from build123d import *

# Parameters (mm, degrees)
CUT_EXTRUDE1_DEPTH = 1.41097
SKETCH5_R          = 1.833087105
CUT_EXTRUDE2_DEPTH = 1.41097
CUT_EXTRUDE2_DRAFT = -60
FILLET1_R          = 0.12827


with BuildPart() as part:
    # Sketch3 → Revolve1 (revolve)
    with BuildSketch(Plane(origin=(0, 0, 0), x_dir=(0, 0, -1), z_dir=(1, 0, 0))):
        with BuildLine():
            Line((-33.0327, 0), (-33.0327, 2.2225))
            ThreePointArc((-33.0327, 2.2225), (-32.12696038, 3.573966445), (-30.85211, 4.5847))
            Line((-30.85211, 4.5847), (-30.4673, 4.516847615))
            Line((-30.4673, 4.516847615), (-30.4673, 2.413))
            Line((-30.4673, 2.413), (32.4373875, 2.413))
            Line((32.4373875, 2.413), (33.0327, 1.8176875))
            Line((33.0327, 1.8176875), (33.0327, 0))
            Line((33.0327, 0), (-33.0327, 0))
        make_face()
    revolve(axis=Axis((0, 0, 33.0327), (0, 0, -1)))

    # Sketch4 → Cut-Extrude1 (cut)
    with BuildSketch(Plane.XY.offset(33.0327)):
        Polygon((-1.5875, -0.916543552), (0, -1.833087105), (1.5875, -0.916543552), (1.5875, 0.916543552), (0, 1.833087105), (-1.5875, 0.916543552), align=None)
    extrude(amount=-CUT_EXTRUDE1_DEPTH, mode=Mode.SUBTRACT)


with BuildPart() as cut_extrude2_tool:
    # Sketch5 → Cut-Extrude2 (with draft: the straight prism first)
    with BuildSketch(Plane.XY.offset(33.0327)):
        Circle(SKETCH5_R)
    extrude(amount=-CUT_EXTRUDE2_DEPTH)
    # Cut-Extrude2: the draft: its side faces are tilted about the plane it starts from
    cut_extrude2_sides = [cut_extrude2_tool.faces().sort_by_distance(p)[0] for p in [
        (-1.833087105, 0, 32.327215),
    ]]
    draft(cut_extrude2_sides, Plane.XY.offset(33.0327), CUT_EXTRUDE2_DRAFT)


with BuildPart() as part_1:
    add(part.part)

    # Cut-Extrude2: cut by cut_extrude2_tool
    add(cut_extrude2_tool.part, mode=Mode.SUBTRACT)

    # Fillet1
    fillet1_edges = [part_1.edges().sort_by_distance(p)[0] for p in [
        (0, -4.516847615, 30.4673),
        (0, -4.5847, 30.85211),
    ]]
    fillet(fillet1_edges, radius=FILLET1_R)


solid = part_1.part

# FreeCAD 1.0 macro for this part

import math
import FreeCAD as App
import Part
import Sketcher
Q = App.Units.Quantity


def edges_at(feature, points):
    """Names of the edges that pass closest to the given points."""
    edges = feature.Shape.Edges
    near = lambda p: min(range(len(edges)), key=lambda i: edges[i].distToShape(Part.Vertex(*p))[0])
    return sorted({f"Edge{near(p) + 1}" for p in points})


def faces_at(feature, points):
    """Names of the faces that lie closest to the given points."""
    faces = feature.Shape.Faces
    near = lambda p: min(range(len(faces)), key=lambda i: faces[i].distToShape(Part.Vertex(*p))[0])
    return sorted({f"Face{near(p) + 1}" for p in points})


def add_polygon(sketch, points):
    """Adds a closed chain of lines whose ends are joined by coincident constraints."""
    first, n = sketch.GeometryCount, len(points)
    for a, b in zip(points, points[1:] + points[:1]):
        sketch.addGeometry(Part.LineSegment(App.Vector(*a, 0), App.Vector(*b, 0)), False)
    for i in range(n):
        sketch.addConstraint(Sketcher.Constraint("Coincident", first + i, 2, first + (i + 1) % n, 1))

doc = App.newDocument("Part")
body = doc.addObject("PartDesign::Body", "Body")

# Sketch on YZ plane
sketch1 = body.newObject("Sketcher::SketchObject", "Sketch")
sketch1.AttachmentSupport = (doc.getObject("YZ_Plane"), [""])
sketch1.MapMode = "FlatFace"
sketch1.addGeometry(Part.LineSegment(App.Vector(2.2225, 33.0327, 0), App.Vector(0, 33.0327, 0)), False)
sketch1.addGeometry(Part.LineSegment(App.Vector(0, 33.0327, 0), App.Vector(0, -33.0327, 0)), False)
sketch1.addGeometry(Part.LineSegment(App.Vector(0, -33.0327, 0), App.Vector(1.817687, -33.0327, 0)), False)
sketch1.addGeometry(Part.LineSegment(App.Vector(1.817687, -33.0327, 0), App.Vector(2.413, -32.437387, 0)), False)
sketch1.addGeometry(Part.LineSegment(App.Vector(2.413, -32.437387, 0), App.Vector(2.413, 30.4673, 0)), False)
sketch1.addGeometry(Part.LineSegment(App.Vector(2.413, 30.4673, 0), App.Vector(4.516848, 30.4673, 0)), False)
sketch1.addGeometry(Part.LineSegment(App.Vector(4.516848, 30.4673, 0), App.Vector(4.5847, 30.85211, 0)), False)
sketch1.addGeometry(Part.ArcOfCircle(Part.Circle(App.Vector(0, 28.255337, 0), App.Vector(0, 0, 1), 5.269033), math.radians(29.527207), math.radians(65.051454)), False)
sketch1.addConstraint(Sketcher.Constraint("Coincident", 0, 2, 1, 1))
sketch1.addConstraint(Sketcher.Constraint("Coincident", 1, 2, 2, 1))
sketch1.addConstraint(Sketcher.Constraint("Coincident", 2, 2, 3, 1))
sketch1.addConstraint(Sketcher.Constraint("Coincident", 3, 2, 4, 1))
sketch1.addConstraint(Sketcher.Constraint("Coincident", 4, 2, 5, 1))
sketch1.addConstraint(Sketcher.Constraint("Coincident", 5, 2, 6, 1))
sketch1.addConstraint(Sketcher.Constraint("Coincident", 6, 2, 7, 1))
sketch1.addConstraint(Sketcher.Constraint("Coincident", 7, 2, 0, 1))
sketch1.addConstraint(Sketcher.Constraint("Horizontal", 0))
sketch1.addConstraint(Sketcher.Constraint("Vertical", 1))
sketch1.addConstraint(Sketcher.Constraint("Horizontal", 2))
sketch1.addConstraint(Sketcher.Constraint("Vertical", 4))
sketch1.addConstraint(Sketcher.Constraint("Horizontal", 5))
sketch1.addConstraint(Sketcher.Constraint("Symmetric", 0, 2, 1, 2, -1, 1))
sketch1.addConstraint(Sketcher.Constraint("PointOnObject", 7, 3, -2))
sketch1.addConstraint(Sketcher.Constraint("Angle", 3, Q("45 deg")))
sketch1.addConstraint(Sketcher.Constraint("Angle", 6, Q("80 deg")))
sketch1.addConstraint(Sketcher.Constraint("DistanceY", 2, 2, 4, 2, Q("2.5 in")))
sketch1.addConstraint(Sketcher.Constraint("DistanceY", 1, 2, 1, 1, Q("2.601 in")))
sketch1.addConstraint(Sketcher.Constraint("DistanceX", 0, 2, 0, 1, Q("0.0875 in")))
sketch1.addConstraint(Sketcher.Constraint("DistanceX", -1, 1, 3, 2, Q("0.095 in")))
sketch1.addConstraint(Sketcher.Constraint("DistanceX", 7, 2, 6, 2, Q("0.093 in")))
sketch1.addConstraint(Sketcher.Constraint("Radius", 7, 5.269033))
sketch1.addConstraint(Sketcher.Constraint("Distance", 3, 0.841899))
revolution = body.newObject("PartDesign::Revolution", "Revolution")
revolution.Profile = sketch1
revolution.ReferenceAxis = (sketch1, ["V_Axis"])
revolution.Angle = 360

# Sketch on XY plane
sketch2 = body.newObject("Sketcher::SketchObject", "Sketch001")
sketch2.AttachmentSupport = (doc.getObject("XY_Plane"), [""])
sketch2.MapMode = "FlatFace"
sketch2.AttachmentOffset = App.Placement(App.Vector(0, 0, 1.3005 * 25.4), App.Rotation())
add_polygon(sketch2, [(-1.5875, -0.916544), (0, -1.833087), (1.5875, -0.916544), (1.5875, 0.916544), (0, 1.833087), (-1.5875, 0.916544)])  # lines 0-5
sketch2.addConstraint(Sketcher.Constraint("Vertical", 2))
sketch2.addConstraint(Sketcher.Constraint("Vertical", 5))
sketch2.addConstraint(Sketcher.Constraint("Symmetric", 0, 2, 3, 2, -1, 1))
sketch2.addConstraint(Sketcher.Constraint("Symmetric", 1, 2, 4, 2, -1, 1))
sketch2.addConstraint(Sketcher.Constraint("PointOnObject", 0, 2, -2))
sketch2.addConstraint(Sketcher.Constraint("Parallel", 0, 3))
sketch2.addConstraint(Sketcher.Constraint("Horizontal", 2, 2, 4, 2))
sketch2.addConstraint(Sketcher.Constraint("Angle", 0, Q("-30 deg")))
sketch2.addConstraint(Sketcher.Constraint("DistanceX", -1, 1, 1, 2, Q("0.0625 in")))
sketch2.addConstraint(Sketcher.Constraint("DistanceY", 2, 1, 2, 2, 1.833087))
pocket1 = body.newObject("PartDesign::Pocket", "Pocket")
pocket1.Profile = sketch2
pocket1.Length = 1.41097
body2 = doc.addObject("PartDesign::Body", "Body001")

# Sketch on XY plane
sketch3 = body2.newObject("Sketcher::SketchObject", "Sketch002")
sketch3.AttachmentSupport = (doc.getObject("XY_Plane001"), [""])
sketch3.MapMode = "FlatFace"
sketch3.AttachmentOffset = App.Placement(App.Vector(0, 0, 1.3005 * 25.4), App.Rotation())
sketch3.addGeometry(Part.Circle(App.Vector(0, 0, 0), App.Vector(0, 0, 1), 1.833087), False)
sketch3.addConstraint(Sketcher.Constraint("Coincident", 0, 3, -1, 1))
sketch3.addConstraint(Sketcher.Constraint("Diameter", 0, 3.666174))
pad1 = body2.newObject("PartDesign::Pad", "Pad")
pad1.Profile = sketch3
pad1.Length = 1.41097
pad1.Reversed = True
doc.recompute()

datumplane = body2.newObject("PartDesign::Plane", "DatumPlane")
datumplane.AttachmentSupport = (doc.getObject("XY_Plane001"), [""])
datumplane.MapMode = "FlatFace"
datumplane.AttachmentOffset = App.Placement(App.Vector(0, 0, 1.3005 * 25.4), App.Rotation())
draft = body2.newObject("PartDesign::Draft", "Draft")
draft.Base = (pad1, faces_at(pad1, [(-1.833, 0, 32.327)]))
draft.NeutralPlane = (datumplane, [""])
draft.Angle = 60
draft.Reversed = True
doc.recompute()

boolean = body.newObject("PartDesign::Boolean", "Boolean")
boolean.Type = "Cut"
boolean.addObjects([body2])
doc.recompute()

fillet = body.newObject("PartDesign::Fillet", "Fillet")
fillet.Base = (boolean, edges_at(boolean, [(0, -4.517, 30.467), (0, -4.585, 30.852)]))
fillet.Radius = 0.12827

doc.recompute()
